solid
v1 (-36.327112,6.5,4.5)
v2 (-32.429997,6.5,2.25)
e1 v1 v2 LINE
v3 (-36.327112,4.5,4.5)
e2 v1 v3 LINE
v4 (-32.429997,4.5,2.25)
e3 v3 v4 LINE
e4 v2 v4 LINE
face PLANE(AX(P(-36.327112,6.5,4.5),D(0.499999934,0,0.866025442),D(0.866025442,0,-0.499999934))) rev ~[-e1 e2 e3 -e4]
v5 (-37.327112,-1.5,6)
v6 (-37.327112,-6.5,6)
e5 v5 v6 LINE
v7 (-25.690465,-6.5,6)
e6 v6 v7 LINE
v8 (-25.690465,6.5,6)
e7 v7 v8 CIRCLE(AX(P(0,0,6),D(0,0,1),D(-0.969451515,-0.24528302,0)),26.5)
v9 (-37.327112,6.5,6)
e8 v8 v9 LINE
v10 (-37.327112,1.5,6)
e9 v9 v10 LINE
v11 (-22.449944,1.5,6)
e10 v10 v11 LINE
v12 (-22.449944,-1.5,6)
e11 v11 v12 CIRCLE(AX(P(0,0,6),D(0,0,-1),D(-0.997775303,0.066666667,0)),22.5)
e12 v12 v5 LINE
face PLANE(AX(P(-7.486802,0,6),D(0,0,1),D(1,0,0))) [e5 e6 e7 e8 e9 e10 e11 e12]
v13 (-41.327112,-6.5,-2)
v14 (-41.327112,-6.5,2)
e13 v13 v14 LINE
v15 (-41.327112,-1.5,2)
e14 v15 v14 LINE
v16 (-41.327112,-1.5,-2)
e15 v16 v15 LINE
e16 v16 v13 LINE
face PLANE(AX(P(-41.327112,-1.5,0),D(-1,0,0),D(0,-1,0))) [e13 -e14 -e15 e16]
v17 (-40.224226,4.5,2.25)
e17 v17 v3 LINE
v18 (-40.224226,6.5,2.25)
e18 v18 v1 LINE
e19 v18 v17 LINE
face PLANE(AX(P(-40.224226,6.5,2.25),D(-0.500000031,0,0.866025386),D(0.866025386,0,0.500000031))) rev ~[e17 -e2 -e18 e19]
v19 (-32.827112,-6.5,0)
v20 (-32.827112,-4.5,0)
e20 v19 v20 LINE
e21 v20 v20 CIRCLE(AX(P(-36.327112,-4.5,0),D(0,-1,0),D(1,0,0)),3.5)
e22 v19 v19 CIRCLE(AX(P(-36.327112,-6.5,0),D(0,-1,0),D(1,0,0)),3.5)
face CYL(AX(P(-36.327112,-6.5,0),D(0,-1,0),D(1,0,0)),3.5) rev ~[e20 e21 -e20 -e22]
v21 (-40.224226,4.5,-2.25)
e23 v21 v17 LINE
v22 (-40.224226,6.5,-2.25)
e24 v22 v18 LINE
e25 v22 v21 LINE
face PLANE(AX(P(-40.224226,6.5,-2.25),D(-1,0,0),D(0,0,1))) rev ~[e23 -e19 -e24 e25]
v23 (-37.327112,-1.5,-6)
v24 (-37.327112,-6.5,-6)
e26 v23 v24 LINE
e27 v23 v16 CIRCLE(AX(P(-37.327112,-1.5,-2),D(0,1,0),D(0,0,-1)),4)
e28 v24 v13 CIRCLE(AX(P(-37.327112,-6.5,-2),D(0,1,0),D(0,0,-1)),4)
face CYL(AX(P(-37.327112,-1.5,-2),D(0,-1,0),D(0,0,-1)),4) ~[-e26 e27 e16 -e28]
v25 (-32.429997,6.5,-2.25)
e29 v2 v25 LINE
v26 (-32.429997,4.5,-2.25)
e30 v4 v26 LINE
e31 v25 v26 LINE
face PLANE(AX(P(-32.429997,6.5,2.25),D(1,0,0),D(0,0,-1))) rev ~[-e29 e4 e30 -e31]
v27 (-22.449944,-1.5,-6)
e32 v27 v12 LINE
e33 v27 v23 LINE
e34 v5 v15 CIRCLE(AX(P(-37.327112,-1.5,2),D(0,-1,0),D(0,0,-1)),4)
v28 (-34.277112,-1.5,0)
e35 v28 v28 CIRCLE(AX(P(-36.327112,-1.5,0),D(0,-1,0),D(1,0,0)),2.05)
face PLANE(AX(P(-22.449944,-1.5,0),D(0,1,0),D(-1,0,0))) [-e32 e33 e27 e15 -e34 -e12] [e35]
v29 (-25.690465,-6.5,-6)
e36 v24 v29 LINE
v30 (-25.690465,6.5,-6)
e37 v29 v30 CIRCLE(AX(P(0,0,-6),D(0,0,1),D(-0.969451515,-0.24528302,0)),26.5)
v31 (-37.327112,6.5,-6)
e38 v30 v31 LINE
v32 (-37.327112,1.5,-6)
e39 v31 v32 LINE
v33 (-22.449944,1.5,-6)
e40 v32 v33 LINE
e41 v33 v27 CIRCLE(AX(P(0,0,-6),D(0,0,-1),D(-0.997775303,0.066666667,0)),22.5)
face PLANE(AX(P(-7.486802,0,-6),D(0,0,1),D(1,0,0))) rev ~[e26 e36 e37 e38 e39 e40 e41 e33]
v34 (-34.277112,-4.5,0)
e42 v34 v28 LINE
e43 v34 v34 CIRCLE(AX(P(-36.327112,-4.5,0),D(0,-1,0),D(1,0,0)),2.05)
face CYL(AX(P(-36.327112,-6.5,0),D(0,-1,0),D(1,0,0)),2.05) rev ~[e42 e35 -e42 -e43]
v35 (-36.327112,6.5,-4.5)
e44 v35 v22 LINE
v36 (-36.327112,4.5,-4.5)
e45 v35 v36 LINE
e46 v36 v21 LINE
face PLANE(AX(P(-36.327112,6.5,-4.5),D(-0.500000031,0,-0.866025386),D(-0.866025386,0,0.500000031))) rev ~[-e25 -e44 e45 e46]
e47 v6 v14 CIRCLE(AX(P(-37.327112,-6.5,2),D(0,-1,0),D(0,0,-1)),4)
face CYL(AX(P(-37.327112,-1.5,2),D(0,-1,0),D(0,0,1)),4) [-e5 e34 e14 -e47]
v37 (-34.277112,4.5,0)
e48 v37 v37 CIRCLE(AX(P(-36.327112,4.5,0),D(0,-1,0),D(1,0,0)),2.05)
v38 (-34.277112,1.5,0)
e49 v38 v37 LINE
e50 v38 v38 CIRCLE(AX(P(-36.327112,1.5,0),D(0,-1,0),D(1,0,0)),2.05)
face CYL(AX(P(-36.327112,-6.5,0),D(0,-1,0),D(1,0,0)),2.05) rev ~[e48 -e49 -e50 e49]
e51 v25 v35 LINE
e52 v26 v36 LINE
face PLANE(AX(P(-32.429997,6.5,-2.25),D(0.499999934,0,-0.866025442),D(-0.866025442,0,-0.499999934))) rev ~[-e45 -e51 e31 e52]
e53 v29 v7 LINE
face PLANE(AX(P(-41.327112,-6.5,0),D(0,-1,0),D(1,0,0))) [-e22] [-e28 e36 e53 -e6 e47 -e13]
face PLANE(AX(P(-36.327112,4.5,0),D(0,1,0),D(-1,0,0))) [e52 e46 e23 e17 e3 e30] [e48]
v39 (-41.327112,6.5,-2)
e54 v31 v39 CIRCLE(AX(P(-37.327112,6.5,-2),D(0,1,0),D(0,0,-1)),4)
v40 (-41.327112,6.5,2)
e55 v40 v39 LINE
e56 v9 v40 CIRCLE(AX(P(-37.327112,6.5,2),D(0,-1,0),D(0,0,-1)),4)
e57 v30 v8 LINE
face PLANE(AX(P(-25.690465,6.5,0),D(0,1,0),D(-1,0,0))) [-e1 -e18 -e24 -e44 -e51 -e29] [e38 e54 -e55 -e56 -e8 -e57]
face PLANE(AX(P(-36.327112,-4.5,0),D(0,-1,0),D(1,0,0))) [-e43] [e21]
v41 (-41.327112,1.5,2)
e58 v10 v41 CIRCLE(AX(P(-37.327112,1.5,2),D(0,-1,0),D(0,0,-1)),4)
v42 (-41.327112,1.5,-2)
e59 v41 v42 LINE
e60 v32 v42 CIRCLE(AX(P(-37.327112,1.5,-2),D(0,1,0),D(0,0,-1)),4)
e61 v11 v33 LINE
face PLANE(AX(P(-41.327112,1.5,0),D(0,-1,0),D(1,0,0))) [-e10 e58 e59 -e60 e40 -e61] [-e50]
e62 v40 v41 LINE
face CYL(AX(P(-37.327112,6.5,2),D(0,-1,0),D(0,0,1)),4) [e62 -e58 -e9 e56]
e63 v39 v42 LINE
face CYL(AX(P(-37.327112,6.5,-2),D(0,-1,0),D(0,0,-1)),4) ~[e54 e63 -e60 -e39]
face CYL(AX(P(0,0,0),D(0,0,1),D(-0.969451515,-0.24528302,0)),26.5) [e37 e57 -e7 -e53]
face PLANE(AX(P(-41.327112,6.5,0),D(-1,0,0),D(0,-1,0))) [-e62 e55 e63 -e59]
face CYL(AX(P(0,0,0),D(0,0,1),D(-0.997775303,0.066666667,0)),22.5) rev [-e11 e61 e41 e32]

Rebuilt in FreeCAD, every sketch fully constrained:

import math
import FreeCAD as App
import Part
import Sketcher

V = App.Vector
Q = App.Units.Quantity


def edges_at(feature, points):
    """Names of the edges that pass closest to the given points."""
    edges = feature.Shape.Edges
    near = lambda p: min(range(len(edges)), key=lambda i: edges[i].distToShape(Part.Vertex(*p))[0])
    return sorted({f"Edge{near(p) + 1}" for p in points})


def add_polygon(sketch, points):
    """Adds a closed chain of lines whose ends are joined by coincident constraints."""
    first, n = sketch.GeometryCount, len(points)
    for a, b in zip(points, points[1:] + points[:1]):
        sketch.addGeometry(Part.LineSegment(App.Vector(*a, 0), App.Vector(*b, 0)), False)
    for i in range(n):
        sketch.addConstraint(Sketcher.Constraint("Coincident", first + i, 2, first + (i + 1) % n, 1))

doc = App.newDocument("Part")
body = doc.addObject("PartDesign::Body", "Body")

# Sketch on XY plane
sketch1 = body.newObject("Sketcher::SketchObject", "Sketch")
sketch1.AttachmentSupport = (doc.getObject("XY_Plane"), [""])
sketch1.MapMode = "FlatFace"
sketch1.addGeometry([
    Part.ArcOfCircle(Part.Circle(V(0, 0, 0), V(0, 0, 1), 22.5), math.radians(-176.177446), math.radians(176.177446)),  # 0
    Part.LineSegment(V(-22.449944, -1.5, 0), V(-41.327112, -1.5, 0)),  # 1
    Part.LineSegment(V(-41.327112, -1.5, 0), V(-41.327112, -6.5, 0)),  # 2
    Part.LineSegment(V(-41.327112, -6.5, 0), V(-25.690465, -6.5, 0)),  # 3
    Part.ArcOfCircle(Part.Circle(V(0, 0, 0), V(0, 0, 1), 26.5), math.radians(-165.80144), math.radians(165.80144)),  # 4
    Part.LineSegment(V(-25.690465, 6.5, 0), V(-41.327112, 6.5, 0)),  # 5
    Part.LineSegment(V(-41.327112, 6.5, 0), V(-41.327112, 1.5, 0)),  # 6
    Part.LineSegment(V(-41.327112, 1.5, 0), V(-22.449944, 1.5, 0)),  # 7
], False)
sketch1.addConstraint([
    Sketcher.Constraint("Coincident", 0, 1, 1, 1),
    Sketcher.Constraint("Coincident", 1, 2, 2, 1),
    Sketcher.Constraint("Coincident", 2, 2, 3, 1),
    Sketcher.Constraint("Coincident", 3, 2, 4, 1),
    Sketcher.Constraint("Coincident", 4, 2, 5, 1),
    Sketcher.Constraint("Coincident", 5, 2, 6, 1),
    Sketcher.Constraint("Coincident", 6, 2, 7, 1),
    Sketcher.Constraint("Coincident", 7, 2, 0, 2),
    Sketcher.Constraint("Horizontal", 1),
    Sketcher.Constraint("Vertical", 2),
    Sketcher.Constraint("Horizontal", 3),
    Sketcher.Constraint("Horizontal", 5),
    Sketcher.Constraint("Vertical", 6),
    Sketcher.Constraint("Horizontal", 7),
    Sketcher.Constraint("Coincident", 0, 3, -1, 1),
    Sketcher.Constraint("Coincident", 4, 3, -1, 1),
    Sketcher.Constraint("Symmetric", 2, 2, 5, 2, -1),
    Sketcher.Constraint("Vertical", 0, 1, 7, 2),
    Sketcher.Constraint("Radius", 0, Q("22.5 mm")),
    Sketcher.Constraint("Radius", 4, Q("26.5 mm")),
    Sketcher.Constraint("DistanceY", 2, 2, 2, 1, Q("5 mm")),
    Sketcher.Constraint("DistanceY", 0, 1, 4, 2, Q("8 mm")),
    Sketcher.Constraint("DistanceX", 1, 2, 1, 1, Q("18.877168 mm")),
])
pad1 = body.newObject("PartDesign::Pad", "Pad")
pad1.Profile = sketch1
pad1.Length = 12
pad1.Midplane = True

# Sketch on XZ plane
sketch2 = body.newObject("Sketcher::SketchObject", "Sketch001")
sketch2.AttachmentSupport = (doc.getObject("XZ_Plane"), [""])
sketch2.MapMode = "FlatFace"
sketch2.AttachmentOffset = App.Placement(V(0, 0, 6.5), App.Rotation())
sketch2.addGeometry(Part.Circle(V(-36.327112, 0, 0), V(0, 0, 1), 2.05), False)
sketch2.addConstraint([
    Sketcher.Constraint("PointOnObject", 0, 3, -1),
    Sketcher.Constraint("Diameter", 0, Q("4.1 mm")),
    Sketcher.Constraint("DistanceX", 0, 3, -1, 1, Q("36.327112 mm")),
])
pocket1 = body.newObject("PartDesign::Pocket", "Pocket")
pocket1.Profile = sketch2
pocket1.Type = "ThroughAll"

# Sketch on XZ plane
sketch3 = body.newObject("Sketcher::SketchObject", "Sketch002")
sketch3.AttachmentSupport = (doc.getObject("XZ_Plane"), [""])
sketch3.MapMode = "FlatFace"
sketch3.AttachmentOffset = App.Placement(V(0, 0, 6.5), App.Rotation())
sketch3.addGeometry([
    Part.Circle(V(-36.327112, 0, 0), V(0, 0, 1), 3.5),
    Part.Circle(V(-36.327112, 0, 0), V(0, 0, 1), 2.05),
], False)
sketch3.addConstraint([
    Sketcher.Constraint("Coincident", 1, 3, 0, 3),
    Sketcher.Constraint("PointOnObject", 0, 3, -1),
    Sketcher.Constraint("Diameter", 0, Q("7 mm")),
    Sketcher.Constraint("Diameter", 1, Q("4.1 mm")),
    Sketcher.Constraint("DistanceX", 0, 3, -1, 1, Q("36.327112 mm")),
])
pocket2 = body.newObject("PartDesign::Pocket", "Pocket001")
pocket2.Profile = sketch3
pocket2.Length = 2

# Sketch on XZ plane
sketch4 = body.newObject("Sketcher::SketchObject", "Sketch003")
sketch4.AttachmentSupport = (doc.getObject("XZ_Plane"), [""])
sketch4.MapMode = "FlatFace"
sketch4.AttachmentOffset = App.Placement(V(0, 0, -6.5), App.Rotation())
add_polygon(sketch4, [(-40.224226, -2.25), (-40.224226, 2.25), (-36.327112, 4.5), (-32.429997, 2.25), (-32.429997, -2.25), (-36.327112, -4.5)])  # lines 0-5
sketch4.addConstraint([
    Sketcher.Constraint("Vertical", 0),
    Sketcher.Constraint("Vertical", 3),
    Sketcher.Constraint("Symmetric", 1, 2, 4, 2, -1),
    Sketcher.Constraint("Parallel", 1, 4),
    Sketcher.Constraint("Parallel", 2, 5),
    Sketcher.Constraint("Horizontal", 0, 2, 2, 2),
    Sketcher.Constraint("Horizontal", 3, 2, 5, 2),
    Sketcher.Constraint("Angle", 1, Q("30.000002 deg")),
    Sketcher.Constraint("DistanceY", 0, 1, 0, 2, Q("4.5 mm")),
    Sketcher.Constraint("DistanceY", 4, 2, 1, 2, Q("9 mm")),
    Sketcher.Constraint("DistanceX", 0, 2, -1, 1, Q("40.224226 mm")),
])
pocket3 = body.newObject("PartDesign::Pocket", "Pocket002")
pocket3.Profile = sketch4
pocket3.Length = 2
pocket3.Reversed = True
doc.recompute()

fillet = body.newObject("PartDesign::Fillet", "Fillet")
fillet.Base = (pocket3, edges_at(pocket3, [
    (-41.327, 4, 6),
    (-41.327, -4, 6),
    (-41.327, 4, -6),
    (-41.327, -4, -6),
]))
fillet.Radius = 4

doc.recompute()
